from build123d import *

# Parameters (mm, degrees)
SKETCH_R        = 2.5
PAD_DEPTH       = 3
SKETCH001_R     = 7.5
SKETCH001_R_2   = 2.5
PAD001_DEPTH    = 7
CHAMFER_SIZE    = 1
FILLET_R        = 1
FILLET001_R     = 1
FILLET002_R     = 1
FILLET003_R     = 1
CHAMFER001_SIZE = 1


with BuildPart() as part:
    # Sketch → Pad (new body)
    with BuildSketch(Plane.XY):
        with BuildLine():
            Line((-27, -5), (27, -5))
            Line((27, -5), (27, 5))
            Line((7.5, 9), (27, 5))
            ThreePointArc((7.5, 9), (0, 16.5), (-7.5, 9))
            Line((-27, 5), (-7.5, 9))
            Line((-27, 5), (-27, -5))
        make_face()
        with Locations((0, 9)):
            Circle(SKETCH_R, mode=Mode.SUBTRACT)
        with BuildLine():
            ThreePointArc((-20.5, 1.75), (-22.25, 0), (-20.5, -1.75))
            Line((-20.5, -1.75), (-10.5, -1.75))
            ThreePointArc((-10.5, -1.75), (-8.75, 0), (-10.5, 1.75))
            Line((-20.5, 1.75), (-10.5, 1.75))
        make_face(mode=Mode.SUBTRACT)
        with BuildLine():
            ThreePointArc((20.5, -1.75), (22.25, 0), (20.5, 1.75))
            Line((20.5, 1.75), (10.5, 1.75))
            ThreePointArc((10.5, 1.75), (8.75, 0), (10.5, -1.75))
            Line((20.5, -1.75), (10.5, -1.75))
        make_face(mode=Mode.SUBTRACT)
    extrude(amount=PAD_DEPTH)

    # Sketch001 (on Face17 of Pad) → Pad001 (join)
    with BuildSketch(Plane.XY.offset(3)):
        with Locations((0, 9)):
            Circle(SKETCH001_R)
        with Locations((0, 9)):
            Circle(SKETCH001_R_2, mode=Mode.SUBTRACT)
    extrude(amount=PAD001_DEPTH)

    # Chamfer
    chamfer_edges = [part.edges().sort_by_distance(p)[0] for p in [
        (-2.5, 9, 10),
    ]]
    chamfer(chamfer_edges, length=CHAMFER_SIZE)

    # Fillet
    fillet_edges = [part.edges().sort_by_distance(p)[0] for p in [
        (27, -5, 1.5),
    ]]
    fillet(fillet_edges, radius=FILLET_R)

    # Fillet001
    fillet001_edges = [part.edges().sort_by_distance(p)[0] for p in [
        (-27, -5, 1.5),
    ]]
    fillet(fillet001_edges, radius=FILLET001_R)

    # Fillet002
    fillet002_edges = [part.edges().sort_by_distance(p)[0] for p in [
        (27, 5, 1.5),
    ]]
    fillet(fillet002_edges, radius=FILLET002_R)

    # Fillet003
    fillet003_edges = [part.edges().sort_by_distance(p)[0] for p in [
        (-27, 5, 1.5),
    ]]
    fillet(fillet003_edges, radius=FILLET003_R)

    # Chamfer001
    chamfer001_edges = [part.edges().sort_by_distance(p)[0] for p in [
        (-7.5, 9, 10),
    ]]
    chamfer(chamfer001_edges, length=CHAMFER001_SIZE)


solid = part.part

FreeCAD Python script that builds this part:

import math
import FreeCAD as App
import Part
import Sketcher
Q = App.Units.Quantity


def edges_at(feature, points):
    """Names of the edges that pass closest to the given points."""
    edges = feature.Shape.Edges
    near = lambda p: min(range(len(edges)), key=lambda i: edges[i].distToShape(Part.Vertex(*p))[0])
    return sorted({f"Edge{near(p) + 1}" for p in points})

doc = App.newDocument("Part")
body = doc.addObject("PartDesign::Body", "Body")

sketch1 = body.newObject("Sketcher::SketchObject", "Sketch")
sketch1.AttachmentSupport = (doc.getObject("XY_Plane"), [""])
sketch1.MapMode = "FlatFace"
sketch1.addGeometry([
    Part.LineSegment(App.Vector(-27, -5, 0), App.Vector(27, -5, 0)),
    Part.LineSegment(App.Vector(27, -5, 0), App.Vector(27, 5, 0)),
    Part.LineSegment(App.Vector(27, 5, 0), App.Vector(7.5, 9, 0)),
    Part.ArcOfCircle(Part.Circle(App.Vector(0, 9, 0), App.Vector(0, 0, 1), 7.5), math.radians(0), math.radians(180)),
    Part.LineSegment(App.Vector(-7.5, 9, 0), App.Vector(-27, 5, 0)),
    Part.LineSegment(App.Vector(-27, 5, 0), App.Vector(-27, -5, 0)),
    Part.ArcOfCircle(Part.Circle(App.Vector(-20.5, 0, 0), App.Vector(0, 0, 1), 1.8), math.radians(90), math.radians(270)),
    Part.LineSegment(App.Vector(-20.5, 1.8, 0), App.Vector(-10.5, 1.8, 0)),
    Part.ArcOfCircle(Part.Circle(App.Vector(-10.5, 0, 0), App.Vector(0, 0, 1), 1.8), math.radians(-90), math.radians(90)),
    Part.LineSegment(App.Vector(-10.5, -1.8, 0), App.Vector(-20.5, -1.8, 0)),
    Part.ArcOfCircle(Part.Circle(App.Vector(20.5, 0, 0), App.Vector(0, 0, 1), 1.8), math.radians(-90), math.radians(90)),
    Part.LineSegment(App.Vector(20.5, -1.8, 0), App.Vector(10.5, -1.8, 0)),
    Part.ArcOfCircle(Part.Circle(App.Vector(10.5, 0, 0), App.Vector(0, 0, 1), 1.8), math.radians(90), math.radians(270)),
    Part.LineSegment(App.Vector(10.5, 1.8, 0), App.Vector(20.5, 1.8, 0)),
    Part.Circle(App.Vector(0, 9, 0), App.Vector(0, 0, 1), 2.5),
], False)
sketch1.addConstraint([
    Sketcher.Constraint("Coincident", 0, 2, 1, 1),
    Sketcher.Constraint("Coincident", 1, 2, 2, 1),
    Sketcher.Constraint("Coincident", 2, 2, 3, 1),
    Sketcher.Constraint("Coincident", 3, 2, 4, 1),
    Sketcher.Constraint("Coincident", 4, 2, 5, 1),
    Sketcher.Constraint("Coincident", 5, 2, 0, 1),
    Sketcher.Constraint("Tangent", 6, 1, 7, 1),
    Sketcher.Constraint("Tangent", 7, 2, 8, 2),
    Sketcher.Constraint("Tangent", 8, 1, 9, 1),
    Sketcher.Constraint("Tangent", 9, 2, 6, 2),
    Sketcher.Constraint("Tangent", 10, 1, 11, 1),
    Sketcher.Constraint("Tangent", 11, 2, 12, 2),
    Sketcher.Constraint("Tangent", 12, 1, 13, 1),
    Sketcher.Constraint("Tangent", 13, 2, 10, 2),
    Sketcher.Constraint("Horizontal", 0),
    Sketcher.Constraint("Vertical", 1),
    Sketcher.Constraint("Vertical", 5),
    Sketcher.Constraint("Horizontal", 7),
    Sketcher.Constraint("Horizontal", 9),
    Sketcher.Constraint("Horizontal", 11),
    Sketcher.Constraint("Horizontal", 13),
    Sketcher.Constraint("Coincident", 14, 3, 3, 3),
    Sketcher.Constraint("Equal", 8, 10),
    Sketcher.Constraint("Symmetric", 6, 3, 10, 3, -1, 1),
    Sketcher.Constraint("Symmetric", 0, 2, 4, 2, -1, 1),
    Sketcher.Constraint("Symmetric", 8, 3, 12, 3, -2),
    Sketcher.Constraint("Symmetric", 2, 2, 3, 2, -2),
    Sketcher.Constraint("Horizontal", 14, 3, 2, 2),
    Sketcher.Constraint("Horizontal", 1, 2, 4, 2),
    Sketcher.Constraint("Equal", 13, 1),
    Sketcher.Constraint("Diameter", 14, Q("5 mm")),
    Sketcher.Constraint("Radius", 3, Q("7.5 mm")),
    Sketcher.Constraint("DistanceX", 0, 1, 0, 2, Q("54 mm")),
    Sketcher.Constraint("DistanceX", 7, 1, 7, 2, Q("10 mm")),
    Sketcher.Constraint("Radius", 6, Q("1.75 mm")),
    Sketcher.Constraint("DistanceY", -1, 1, 3, 3, Q("9 mm")),
    Sketcher.Constraint("DistanceX", 8, 3, 10, 3, Q("31 mm")),
])
pad1 = body.newObject("PartDesign::Pad", "Pad")
pad1.Profile = sketch1
pad1.Length = 3

sketch2 = body.newObject("Sketcher::SketchObject", "Sketch001")
sketch2.AttachmentSupport = (doc.getObject("XY_Plane"), [""])
sketch2.MapMode = "FlatFace"
sketch2.AttachmentOffset = App.Placement(App.Vector(0, 0, 3), App.Rotation())
sketch2.addGeometry([
    Part.Circle(App.Vector(0, 9, 0), App.Vector(0, 0, 1), 7.5),
    Part.Circle(App.Vector(0, 9, 0), App.Vector(0, 0, 1), 2.5),
], False)
sketch2.addConstraint([
    Sketcher.Constraint("Coincident", 1, 3, 0, 3),
    Sketcher.Constraint("PointOnObject", 0, 3, -2),
    Sketcher.Constraint("Diameter", 0, Q("15 mm")),
    Sketcher.Constraint("Diameter", 1, Q("5 mm")),
    Sketcher.Constraint("DistanceY", -1, 1, 0, 3, Q("9 mm")),
])
pad2 = body.newObject("PartDesign::Pad", "Pad001")
pad2.Profile = sketch2
pad2.Length = 7
doc.recompute()

chamfer = body.newObject("PartDesign::Chamfer", "Chamfer")
chamfer.Base = (pad2, edges_at(pad2, [(-2.5, 9, 10)]))
chamfer.Size = 1
doc.recompute()

fillet = body.newObject("PartDesign::Fillet", "Fillet")
fillet.Base = (chamfer, edges_at(chamfer, [(27, -5, 1.5)]))
fillet.Radius = 1
doc.recompute()

fillet2 = body.newObject("PartDesign::Fillet", "Fillet001")
fillet2.Base = (fillet, edges_at(fillet, [(-27, -5, 1.5)]))
fillet2.Radius = 1
doc.recompute()

fillet3 = body.newObject("PartDesign::Fillet", "Fillet002")
fillet3.Base = (fillet2, edges_at(fillet2, [(27, 5, 1.5)]))
fillet3.Radius = 1
doc.recompute()

fillet4 = body.newObject("PartDesign::Fillet", "Fillet003")
fillet4.Base = (fillet3, edges_at(fillet3, [(-27, 5, 1.5)]))
fillet4.Radius = 1
doc.recompute()

chamfer2 = body.newObject("PartDesign::Chamfer", "Chamfer001")
chamfer2.Base = (fillet4, edges_at(fillet4, [(-7.5, 9, 10)]))
chamfer2.Size = 1

doc.recompute()
